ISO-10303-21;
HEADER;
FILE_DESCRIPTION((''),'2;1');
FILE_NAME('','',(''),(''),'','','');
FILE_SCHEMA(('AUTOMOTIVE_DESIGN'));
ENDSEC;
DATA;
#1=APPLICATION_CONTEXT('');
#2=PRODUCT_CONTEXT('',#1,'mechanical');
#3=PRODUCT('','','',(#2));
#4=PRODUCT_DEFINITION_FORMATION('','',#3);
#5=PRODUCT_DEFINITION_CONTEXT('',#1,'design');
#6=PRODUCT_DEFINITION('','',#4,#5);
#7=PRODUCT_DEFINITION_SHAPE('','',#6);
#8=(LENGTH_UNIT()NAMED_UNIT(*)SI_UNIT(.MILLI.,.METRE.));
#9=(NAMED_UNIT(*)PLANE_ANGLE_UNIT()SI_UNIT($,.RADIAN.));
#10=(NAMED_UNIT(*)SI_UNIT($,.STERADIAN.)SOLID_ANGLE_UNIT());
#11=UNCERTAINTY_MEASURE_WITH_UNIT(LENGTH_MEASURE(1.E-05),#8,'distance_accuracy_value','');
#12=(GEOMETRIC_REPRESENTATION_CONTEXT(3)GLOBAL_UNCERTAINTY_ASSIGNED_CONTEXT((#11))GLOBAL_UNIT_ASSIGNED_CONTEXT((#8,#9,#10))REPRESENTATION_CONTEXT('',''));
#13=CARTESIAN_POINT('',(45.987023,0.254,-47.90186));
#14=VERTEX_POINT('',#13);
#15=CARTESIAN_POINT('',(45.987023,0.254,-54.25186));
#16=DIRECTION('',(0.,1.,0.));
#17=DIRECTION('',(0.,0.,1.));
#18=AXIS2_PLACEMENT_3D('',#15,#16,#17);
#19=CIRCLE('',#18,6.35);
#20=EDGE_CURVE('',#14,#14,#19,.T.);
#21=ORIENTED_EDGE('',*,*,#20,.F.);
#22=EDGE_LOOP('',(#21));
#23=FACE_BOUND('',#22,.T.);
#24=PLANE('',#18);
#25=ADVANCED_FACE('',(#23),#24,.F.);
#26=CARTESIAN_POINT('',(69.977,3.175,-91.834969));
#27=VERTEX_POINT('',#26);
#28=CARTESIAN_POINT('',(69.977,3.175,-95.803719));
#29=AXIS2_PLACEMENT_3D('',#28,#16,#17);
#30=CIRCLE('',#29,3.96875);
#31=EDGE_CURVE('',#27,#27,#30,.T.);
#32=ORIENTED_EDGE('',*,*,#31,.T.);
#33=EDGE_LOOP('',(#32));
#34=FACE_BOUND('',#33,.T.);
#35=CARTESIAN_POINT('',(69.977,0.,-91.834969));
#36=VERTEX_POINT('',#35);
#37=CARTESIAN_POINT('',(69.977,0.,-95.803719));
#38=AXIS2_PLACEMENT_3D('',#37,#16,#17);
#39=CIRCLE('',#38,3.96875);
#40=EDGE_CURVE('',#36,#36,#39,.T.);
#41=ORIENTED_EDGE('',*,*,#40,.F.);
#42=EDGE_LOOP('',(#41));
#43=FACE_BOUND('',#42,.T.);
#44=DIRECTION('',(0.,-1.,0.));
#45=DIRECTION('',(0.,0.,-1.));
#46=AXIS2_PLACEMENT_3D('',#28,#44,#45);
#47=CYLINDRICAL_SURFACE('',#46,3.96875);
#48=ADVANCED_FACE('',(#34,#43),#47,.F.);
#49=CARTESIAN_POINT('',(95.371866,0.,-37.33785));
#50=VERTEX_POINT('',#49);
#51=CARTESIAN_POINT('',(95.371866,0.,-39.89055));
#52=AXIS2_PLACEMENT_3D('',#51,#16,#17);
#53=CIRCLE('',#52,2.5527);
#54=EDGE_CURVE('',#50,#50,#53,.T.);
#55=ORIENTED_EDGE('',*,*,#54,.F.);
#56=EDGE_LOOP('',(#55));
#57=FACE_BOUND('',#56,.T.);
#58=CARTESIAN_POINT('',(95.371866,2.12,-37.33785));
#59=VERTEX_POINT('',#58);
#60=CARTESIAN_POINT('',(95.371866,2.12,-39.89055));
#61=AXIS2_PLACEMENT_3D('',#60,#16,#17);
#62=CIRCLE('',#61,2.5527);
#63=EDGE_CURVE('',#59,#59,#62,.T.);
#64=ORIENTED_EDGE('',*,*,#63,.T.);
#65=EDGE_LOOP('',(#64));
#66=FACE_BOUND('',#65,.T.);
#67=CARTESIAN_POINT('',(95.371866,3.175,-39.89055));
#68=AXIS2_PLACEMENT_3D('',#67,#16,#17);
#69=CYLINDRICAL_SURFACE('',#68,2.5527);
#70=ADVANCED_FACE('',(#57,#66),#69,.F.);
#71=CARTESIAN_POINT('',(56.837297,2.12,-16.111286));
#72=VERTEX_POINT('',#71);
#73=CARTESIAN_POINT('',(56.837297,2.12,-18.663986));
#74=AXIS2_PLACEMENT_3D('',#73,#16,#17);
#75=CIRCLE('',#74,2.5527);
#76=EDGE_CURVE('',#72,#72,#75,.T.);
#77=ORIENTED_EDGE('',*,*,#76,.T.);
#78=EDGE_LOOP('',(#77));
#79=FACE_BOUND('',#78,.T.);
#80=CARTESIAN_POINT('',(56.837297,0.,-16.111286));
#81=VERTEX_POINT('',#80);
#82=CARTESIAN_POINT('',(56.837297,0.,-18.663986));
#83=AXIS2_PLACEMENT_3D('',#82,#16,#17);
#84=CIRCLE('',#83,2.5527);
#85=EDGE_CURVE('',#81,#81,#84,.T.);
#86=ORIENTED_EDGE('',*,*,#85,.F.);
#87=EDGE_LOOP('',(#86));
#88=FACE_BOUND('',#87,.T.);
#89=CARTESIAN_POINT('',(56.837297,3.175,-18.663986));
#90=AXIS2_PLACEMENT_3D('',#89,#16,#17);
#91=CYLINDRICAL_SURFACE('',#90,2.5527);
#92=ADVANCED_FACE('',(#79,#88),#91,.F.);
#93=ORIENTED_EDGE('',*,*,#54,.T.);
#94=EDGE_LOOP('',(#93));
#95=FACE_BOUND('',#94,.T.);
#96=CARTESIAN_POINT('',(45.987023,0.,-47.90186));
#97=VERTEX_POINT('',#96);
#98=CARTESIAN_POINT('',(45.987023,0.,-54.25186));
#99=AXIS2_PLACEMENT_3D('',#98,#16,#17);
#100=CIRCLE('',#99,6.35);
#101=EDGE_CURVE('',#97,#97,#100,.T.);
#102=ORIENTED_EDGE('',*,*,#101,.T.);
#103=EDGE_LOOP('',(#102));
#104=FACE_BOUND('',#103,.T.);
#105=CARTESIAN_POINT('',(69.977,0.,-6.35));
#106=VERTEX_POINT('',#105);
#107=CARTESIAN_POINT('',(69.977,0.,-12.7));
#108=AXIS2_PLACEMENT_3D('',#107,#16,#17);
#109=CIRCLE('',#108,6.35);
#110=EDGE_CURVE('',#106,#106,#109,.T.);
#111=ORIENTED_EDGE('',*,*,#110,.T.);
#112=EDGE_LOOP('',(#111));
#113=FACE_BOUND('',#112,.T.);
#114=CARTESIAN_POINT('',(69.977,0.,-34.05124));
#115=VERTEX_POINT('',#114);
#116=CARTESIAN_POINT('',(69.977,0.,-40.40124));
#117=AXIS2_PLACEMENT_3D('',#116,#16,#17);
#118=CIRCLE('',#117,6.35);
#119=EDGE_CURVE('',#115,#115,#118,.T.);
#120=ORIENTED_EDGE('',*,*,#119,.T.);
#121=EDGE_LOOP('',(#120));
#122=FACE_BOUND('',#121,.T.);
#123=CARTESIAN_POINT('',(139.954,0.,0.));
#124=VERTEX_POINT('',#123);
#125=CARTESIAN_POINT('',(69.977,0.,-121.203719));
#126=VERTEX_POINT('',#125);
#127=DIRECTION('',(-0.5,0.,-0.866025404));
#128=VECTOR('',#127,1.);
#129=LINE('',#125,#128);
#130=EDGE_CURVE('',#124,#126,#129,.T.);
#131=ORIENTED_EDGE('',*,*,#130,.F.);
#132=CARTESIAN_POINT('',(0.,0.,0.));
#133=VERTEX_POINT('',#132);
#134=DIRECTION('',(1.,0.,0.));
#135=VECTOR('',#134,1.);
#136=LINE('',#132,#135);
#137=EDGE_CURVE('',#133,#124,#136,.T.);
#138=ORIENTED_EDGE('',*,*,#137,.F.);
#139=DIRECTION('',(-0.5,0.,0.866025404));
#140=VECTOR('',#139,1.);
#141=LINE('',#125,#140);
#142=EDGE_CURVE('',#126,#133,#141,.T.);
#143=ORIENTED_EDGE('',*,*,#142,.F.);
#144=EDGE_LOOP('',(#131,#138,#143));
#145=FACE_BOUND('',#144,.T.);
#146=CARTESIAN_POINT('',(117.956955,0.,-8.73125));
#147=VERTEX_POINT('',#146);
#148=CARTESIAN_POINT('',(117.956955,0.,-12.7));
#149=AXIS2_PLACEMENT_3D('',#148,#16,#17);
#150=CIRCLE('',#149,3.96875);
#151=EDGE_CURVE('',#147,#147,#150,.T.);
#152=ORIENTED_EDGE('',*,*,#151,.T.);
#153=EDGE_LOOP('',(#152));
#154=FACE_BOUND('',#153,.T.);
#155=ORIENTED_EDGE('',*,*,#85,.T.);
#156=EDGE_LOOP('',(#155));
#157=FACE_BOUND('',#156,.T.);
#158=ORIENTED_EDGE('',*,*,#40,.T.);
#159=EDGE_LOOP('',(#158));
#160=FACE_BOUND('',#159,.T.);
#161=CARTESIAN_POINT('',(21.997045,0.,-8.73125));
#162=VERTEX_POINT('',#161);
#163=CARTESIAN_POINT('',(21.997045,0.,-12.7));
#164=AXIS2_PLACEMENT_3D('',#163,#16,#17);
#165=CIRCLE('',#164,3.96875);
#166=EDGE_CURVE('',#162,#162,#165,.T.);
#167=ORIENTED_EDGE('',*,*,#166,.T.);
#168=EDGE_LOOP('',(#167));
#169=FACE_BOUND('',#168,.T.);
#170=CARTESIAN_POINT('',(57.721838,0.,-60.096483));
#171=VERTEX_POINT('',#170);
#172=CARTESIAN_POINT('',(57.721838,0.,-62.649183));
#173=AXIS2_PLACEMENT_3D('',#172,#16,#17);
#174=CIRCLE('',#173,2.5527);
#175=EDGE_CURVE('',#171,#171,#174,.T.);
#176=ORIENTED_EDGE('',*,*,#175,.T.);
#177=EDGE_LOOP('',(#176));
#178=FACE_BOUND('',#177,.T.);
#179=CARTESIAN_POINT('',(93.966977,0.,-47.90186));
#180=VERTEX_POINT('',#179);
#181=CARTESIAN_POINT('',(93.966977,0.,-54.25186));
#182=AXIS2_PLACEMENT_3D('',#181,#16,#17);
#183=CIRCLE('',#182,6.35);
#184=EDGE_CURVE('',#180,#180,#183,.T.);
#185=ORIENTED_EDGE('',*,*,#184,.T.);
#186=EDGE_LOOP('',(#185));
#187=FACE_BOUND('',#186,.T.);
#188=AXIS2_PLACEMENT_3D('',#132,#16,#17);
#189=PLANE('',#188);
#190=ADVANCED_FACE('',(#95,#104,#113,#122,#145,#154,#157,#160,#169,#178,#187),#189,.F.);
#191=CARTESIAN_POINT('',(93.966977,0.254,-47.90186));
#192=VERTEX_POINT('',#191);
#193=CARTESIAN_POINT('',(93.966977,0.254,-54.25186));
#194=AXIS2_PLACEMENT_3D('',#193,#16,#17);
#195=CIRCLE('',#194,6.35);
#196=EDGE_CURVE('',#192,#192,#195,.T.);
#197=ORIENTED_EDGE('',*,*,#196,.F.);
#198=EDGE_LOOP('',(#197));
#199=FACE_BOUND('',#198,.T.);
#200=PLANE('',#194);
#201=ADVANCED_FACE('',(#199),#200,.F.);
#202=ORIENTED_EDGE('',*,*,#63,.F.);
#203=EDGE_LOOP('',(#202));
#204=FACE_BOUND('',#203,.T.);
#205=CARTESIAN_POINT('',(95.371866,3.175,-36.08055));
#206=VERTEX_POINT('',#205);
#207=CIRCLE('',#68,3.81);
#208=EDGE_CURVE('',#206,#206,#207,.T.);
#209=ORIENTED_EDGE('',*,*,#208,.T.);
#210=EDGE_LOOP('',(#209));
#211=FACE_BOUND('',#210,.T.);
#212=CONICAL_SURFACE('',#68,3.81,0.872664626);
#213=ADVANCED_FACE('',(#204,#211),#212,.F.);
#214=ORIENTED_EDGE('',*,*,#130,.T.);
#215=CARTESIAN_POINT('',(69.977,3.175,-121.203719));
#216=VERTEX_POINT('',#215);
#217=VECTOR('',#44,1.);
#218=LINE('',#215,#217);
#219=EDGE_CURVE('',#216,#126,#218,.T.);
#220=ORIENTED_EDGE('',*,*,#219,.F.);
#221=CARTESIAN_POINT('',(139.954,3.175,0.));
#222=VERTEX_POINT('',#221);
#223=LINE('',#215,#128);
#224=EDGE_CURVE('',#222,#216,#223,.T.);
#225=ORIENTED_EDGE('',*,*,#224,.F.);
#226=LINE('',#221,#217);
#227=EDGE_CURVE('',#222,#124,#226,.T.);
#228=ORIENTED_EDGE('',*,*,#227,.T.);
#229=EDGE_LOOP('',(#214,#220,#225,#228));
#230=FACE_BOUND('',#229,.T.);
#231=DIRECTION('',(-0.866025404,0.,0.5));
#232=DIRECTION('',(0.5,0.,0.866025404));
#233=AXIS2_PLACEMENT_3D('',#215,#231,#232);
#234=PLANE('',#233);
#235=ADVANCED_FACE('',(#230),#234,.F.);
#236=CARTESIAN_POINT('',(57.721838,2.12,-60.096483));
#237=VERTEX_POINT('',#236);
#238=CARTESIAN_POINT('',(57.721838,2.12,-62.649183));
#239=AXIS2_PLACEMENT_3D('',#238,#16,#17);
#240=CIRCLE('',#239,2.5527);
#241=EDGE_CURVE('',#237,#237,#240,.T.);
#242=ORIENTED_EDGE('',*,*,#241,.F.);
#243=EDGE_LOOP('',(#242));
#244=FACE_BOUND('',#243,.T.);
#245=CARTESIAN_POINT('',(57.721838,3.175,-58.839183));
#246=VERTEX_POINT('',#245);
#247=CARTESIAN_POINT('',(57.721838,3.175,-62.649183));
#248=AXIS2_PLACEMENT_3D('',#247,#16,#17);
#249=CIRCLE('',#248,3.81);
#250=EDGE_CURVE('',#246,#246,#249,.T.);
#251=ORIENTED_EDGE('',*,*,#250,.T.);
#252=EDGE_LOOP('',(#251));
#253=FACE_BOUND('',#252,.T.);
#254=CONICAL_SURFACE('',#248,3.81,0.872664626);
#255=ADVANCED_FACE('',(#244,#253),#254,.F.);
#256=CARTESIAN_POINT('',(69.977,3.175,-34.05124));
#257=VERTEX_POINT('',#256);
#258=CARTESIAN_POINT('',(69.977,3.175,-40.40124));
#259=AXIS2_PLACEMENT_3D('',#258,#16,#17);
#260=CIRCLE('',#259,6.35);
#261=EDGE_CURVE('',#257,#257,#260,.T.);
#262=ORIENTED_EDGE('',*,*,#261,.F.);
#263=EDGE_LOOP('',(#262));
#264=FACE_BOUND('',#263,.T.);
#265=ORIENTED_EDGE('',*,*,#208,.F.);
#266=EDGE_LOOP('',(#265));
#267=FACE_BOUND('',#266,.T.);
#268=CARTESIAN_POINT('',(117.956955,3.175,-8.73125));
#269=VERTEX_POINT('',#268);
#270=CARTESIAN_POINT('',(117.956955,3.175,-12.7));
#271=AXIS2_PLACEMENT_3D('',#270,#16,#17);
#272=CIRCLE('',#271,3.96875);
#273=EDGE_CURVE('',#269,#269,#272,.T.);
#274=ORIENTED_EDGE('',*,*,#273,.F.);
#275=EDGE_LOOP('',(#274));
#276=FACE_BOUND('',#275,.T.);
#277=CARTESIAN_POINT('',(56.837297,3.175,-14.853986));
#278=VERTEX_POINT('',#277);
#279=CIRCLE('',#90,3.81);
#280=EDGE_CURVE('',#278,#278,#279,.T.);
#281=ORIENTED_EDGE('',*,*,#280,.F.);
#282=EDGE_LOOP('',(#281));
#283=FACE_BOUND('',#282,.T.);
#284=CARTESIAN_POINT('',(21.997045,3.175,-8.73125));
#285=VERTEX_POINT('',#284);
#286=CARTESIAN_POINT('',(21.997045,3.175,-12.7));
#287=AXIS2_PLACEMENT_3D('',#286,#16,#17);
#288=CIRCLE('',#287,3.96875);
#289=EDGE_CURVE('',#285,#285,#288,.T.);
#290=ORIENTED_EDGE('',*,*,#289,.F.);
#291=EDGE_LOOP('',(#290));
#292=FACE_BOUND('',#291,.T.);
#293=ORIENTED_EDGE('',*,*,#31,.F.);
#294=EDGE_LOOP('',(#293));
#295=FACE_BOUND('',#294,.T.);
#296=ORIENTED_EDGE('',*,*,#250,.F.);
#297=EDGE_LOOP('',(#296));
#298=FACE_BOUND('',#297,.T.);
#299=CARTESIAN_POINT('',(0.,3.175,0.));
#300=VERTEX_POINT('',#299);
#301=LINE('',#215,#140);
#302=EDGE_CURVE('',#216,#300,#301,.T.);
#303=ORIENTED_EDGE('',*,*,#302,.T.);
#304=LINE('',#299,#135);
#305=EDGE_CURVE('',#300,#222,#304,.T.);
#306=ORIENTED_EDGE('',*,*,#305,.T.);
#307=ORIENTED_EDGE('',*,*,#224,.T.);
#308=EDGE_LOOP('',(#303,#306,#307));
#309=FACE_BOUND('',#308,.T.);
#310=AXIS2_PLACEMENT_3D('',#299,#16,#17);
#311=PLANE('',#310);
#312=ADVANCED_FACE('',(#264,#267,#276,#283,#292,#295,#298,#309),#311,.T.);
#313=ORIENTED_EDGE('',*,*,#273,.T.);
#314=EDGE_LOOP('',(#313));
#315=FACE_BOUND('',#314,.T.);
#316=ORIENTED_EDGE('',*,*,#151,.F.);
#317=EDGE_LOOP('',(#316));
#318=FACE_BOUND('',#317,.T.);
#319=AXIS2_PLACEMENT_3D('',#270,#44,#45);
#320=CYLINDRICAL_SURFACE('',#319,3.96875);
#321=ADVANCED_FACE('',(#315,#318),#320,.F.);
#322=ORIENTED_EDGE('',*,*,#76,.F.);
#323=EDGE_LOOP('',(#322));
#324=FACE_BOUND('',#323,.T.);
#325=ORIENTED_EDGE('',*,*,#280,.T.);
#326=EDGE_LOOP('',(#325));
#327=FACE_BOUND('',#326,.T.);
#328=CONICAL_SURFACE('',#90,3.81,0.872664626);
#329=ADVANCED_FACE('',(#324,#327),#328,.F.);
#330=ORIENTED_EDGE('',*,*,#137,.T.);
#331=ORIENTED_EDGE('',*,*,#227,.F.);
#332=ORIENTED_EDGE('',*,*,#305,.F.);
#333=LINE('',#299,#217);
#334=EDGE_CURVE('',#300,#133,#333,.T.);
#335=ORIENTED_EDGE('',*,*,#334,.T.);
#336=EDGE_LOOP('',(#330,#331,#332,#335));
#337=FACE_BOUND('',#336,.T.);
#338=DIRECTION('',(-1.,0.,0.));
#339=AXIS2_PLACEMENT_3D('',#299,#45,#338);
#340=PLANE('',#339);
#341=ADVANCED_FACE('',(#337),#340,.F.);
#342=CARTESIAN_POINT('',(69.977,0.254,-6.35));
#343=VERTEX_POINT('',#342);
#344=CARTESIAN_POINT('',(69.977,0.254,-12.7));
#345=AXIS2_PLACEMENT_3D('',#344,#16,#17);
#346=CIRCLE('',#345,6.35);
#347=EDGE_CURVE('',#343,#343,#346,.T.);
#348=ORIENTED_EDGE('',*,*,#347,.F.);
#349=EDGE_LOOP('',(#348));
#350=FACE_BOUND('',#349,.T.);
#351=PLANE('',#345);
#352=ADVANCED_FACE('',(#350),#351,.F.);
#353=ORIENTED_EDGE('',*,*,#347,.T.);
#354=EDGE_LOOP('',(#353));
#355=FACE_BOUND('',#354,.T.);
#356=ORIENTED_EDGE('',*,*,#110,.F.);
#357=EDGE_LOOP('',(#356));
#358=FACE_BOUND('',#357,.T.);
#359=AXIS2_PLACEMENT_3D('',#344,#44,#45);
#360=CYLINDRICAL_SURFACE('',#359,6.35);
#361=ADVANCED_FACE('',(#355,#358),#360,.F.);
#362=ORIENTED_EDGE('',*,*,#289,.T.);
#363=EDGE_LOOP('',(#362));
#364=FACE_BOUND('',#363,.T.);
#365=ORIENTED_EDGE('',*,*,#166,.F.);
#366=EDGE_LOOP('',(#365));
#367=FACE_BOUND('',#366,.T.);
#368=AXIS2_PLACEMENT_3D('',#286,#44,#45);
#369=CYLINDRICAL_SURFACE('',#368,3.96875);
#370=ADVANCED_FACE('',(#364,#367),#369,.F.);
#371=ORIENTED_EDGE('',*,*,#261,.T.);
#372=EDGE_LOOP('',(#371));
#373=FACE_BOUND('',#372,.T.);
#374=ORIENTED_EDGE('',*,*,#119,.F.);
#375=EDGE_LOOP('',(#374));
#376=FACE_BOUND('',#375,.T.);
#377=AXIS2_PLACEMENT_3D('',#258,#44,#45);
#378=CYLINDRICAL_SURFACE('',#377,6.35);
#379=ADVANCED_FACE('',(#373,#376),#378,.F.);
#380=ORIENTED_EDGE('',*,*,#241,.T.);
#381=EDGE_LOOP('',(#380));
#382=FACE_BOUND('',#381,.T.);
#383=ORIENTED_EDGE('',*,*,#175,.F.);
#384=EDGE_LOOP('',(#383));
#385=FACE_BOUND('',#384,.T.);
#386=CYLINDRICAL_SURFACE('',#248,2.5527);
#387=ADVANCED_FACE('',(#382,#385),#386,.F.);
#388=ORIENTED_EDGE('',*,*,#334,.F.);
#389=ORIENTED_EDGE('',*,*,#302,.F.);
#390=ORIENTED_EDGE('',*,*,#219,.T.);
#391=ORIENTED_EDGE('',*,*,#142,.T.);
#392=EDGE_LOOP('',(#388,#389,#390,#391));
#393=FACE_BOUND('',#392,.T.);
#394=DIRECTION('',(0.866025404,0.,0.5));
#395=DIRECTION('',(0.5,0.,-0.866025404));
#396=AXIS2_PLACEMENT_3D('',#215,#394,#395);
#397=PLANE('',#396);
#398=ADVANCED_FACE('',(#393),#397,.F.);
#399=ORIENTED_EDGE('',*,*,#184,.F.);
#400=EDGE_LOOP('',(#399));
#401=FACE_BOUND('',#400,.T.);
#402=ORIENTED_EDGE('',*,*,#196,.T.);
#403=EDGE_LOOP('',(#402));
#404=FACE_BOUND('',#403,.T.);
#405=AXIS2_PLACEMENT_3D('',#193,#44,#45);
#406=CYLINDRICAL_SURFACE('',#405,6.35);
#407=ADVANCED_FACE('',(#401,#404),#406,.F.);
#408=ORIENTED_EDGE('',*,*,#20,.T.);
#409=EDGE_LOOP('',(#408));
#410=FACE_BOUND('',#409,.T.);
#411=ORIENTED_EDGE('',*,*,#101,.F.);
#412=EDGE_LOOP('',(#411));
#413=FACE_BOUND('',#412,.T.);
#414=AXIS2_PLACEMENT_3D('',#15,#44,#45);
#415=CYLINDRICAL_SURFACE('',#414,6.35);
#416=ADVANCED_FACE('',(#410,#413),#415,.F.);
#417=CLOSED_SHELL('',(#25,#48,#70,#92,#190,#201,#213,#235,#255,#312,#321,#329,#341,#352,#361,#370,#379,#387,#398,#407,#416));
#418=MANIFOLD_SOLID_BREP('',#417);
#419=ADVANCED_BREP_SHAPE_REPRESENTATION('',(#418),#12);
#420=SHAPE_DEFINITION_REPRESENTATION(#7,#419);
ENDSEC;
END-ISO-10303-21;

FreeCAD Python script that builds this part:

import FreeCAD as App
import Part
import Sketcher
from FreeCAD import Vector
Q = App.Units.Quantity

doc = App.newDocument("Part")
body = doc.addObject("PartDesign::Body", "Body")

# Sketch on XZ plane
sketch1 = body.newObject("Sketcher::SketchObject", "Sketch")
sketch1.AttachmentSupport = (doc.getObject("XZ_Plane"), [""])
sketch1.MapMode = "FlatFace"
sketch1.addGeometry([
    Part.LineSegment(Vector(0, 0, 0), Vector(139.954, 0, 0)),  # 0
    Part.LineSegment(Vector(139.954, 0, 0), Vector(69.977, -121.203719, 0)),  # 1
    Part.LineSegment(Vector(69.977, -121.203719, 0), Vector(0, 0, 0)),  # 2
    Part.Circle(Vector(21.997045, -12.7, 0), Vector(0, 0, 1), 3.96875),  # 3
    Part.Circle(Vector(117.956955, -12.7, 0), Vector(0, 0, 1), 3.96875),  # 4
    Part.Circle(Vector(69.977, -40.40124, 0), Vector(0, 0, 1), 6.35),  # 5
    Part.Circle(Vector(69.977, -95.803719, 0), Vector(0, 0, 1), 3.96875),  # 6
], False)
sketch1.addConstraint([
    Sketcher.Constraint("Coincident", 0, 2, 1, 1),
    Sketcher.Constraint("Coincident", 1, 2, 2, 1),
    Sketcher.Constraint("Coincident", 2, 2, 0, 1),
    Sketcher.Constraint("Horizontal", 0),
    Sketcher.Constraint("Coincident", 2, 2, -1, 1),
    Sketcher.Constraint("Equal", 3, 4),
    Sketcher.Constraint("Equal", 4, 6),
    Sketcher.Constraint("Horizontal", 3, 3, 4, 3),
    Sketcher.Constraint("Vertical", 5, 3, 6, 3),
    Sketcher.Constraint("Vertical", 6, 3, 1, 2),
    Sketcher.Constraint("Equal", 1, 2),
    Sketcher.Constraint("Diameter", 5, Q("0.5 in")),
    Sketcher.Constraint("Diameter", 3, Q("0.3125 in")),
    Sketcher.Constraint("Angle", 1, Q("-120 deg")),
    Sketcher.Constraint("DistanceY", 1, 2, 6, 3, Q("1 in")),
    Sketcher.Constraint("DistanceX", 0, 1, 0, 2, Q("5.51 in")),
    Sketcher.Constraint("DistanceY", 3, 3, -1, 1, Q("0.5 in")),
    Sketcher.Constraint("DistanceY", 5, 3, -1, 1, Q("1.5906 in")),
    Sketcher.Constraint("DistanceX", 3, 3, 4, 3, 95.959909),
    Sketcher.Constraint("DistanceX", -1, 1, 3, 3, 21.997045),
])
pad1 = body.newObject("PartDesign::Pad", "Pad")
pad1.Profile = sketch1
pad1.Length = Q("0.125 in")
pad1.Reversed = True

# Sketch on XZ plane
sketch2 = body.newObject("Sketcher::SketchObject", "Sketch001")
sketch2.AttachmentSupport = (doc.getObject("XZ_Plane"), [""])
sketch2.MapMode = "FlatFace"
sketch2.addGeometry([
    Part.Circle(Vector(93.966977, -54.25186, 0), Vector(0, 0, 1), 6.35),
    Part.Circle(Vector(69.977, -12.7, 0), Vector(0, 0, 1), 6.35),
    Part.Circle(Vector(45.987023, -54.25186, 0), Vector(0, 0, 1), 6.35),
], False)
sketch2.addConstraint([
    Sketcher.Constraint("Equal", 0, 1),
    Sketcher.Constraint("Equal", 1, 2),
    Sketcher.Constraint("Horizontal", 0, 3, 2, 3),
    Sketcher.Constraint("Diameter", 0, Q("0.5 in")),
    Sketcher.Constraint("DistanceY", 1, 3, -1, 1, Q("0.5 in")),
    Sketcher.Constraint("DistanceX", -1, 1, 1, 3, Q("2.755 in")),
    Sketcher.Constraint("DistanceY", 0, 3, -1, 1, Q("2.1359 in")),
    Sketcher.Constraint("DistanceX", -1, 1, 0, 3, 93.966977),
    Sketcher.Constraint("DistanceX", -1, 1, 2, 3, 45.987023),
])
pocket1 = body.newObject("PartDesign::Pocket", "Pocket")
pocket1.Profile = sketch2
pocket1.Length = Q("0.01 in")

# Sketch on YZ plane
sketch3 = body.newObject("Sketcher::SketchObject", "Sketch002")
sketch3.AttachmentSupport = (doc.getObject("YZ_Plane"), [""])
sketch3.MapMode = "FlatFace"
sketch3.AttachmentOffset = App.Placement(Vector(0, 0, 56.837297), App.Rotation())
sketch3.addGeometry([
    Part.LineSegment(Vector(0, -18.663986, 0), Vector(3.175, -18.663986, 0)),  # 0
    Part.LineSegment(Vector(3.175, -18.663986, 0), Vector(3.175, -14.853986, 0)),  # 1
    Part.LineSegment(Vector(3.175, -14.853986, 0), Vector(2.12, -16.111286, 0)),  # 2
    Part.LineSegment(Vector(2.12, -16.111286, 0), Vector(0, -16.111286, 0)),  # 3
    Part.LineSegment(Vector(0, -16.111286, 0), Vector(0, -18.663986, 0)),  # 4
], False)
sketch3.addGeometry(Part.LineSegment(Vector(3.175, -18.663986, 0), Vector(0, -18.663986, 0)), True)  # axis
sketch3.addConstraint([
    Sketcher.Constraint("Coincident", 0, 2, 1, 1),
    Sketcher.Constraint("Coincident", 1, 2, 2, 1),
    Sketcher.Constraint("Coincident", 2, 2, 3, 1),
    Sketcher.Constraint("Coincident", 3, 2, 4, 1),
    Sketcher.Constraint("Coincident", 4, 2, 0, 1),
    Sketcher.Constraint("Horizontal", 0),
    Sketcher.Constraint("Vertical", 1),
    Sketcher.Constraint("Horizontal", 3),
    Sketcher.Constraint("Vertical", 4),
    Sketcher.Constraint("Horizontal", 5),
    Sketcher.Constraint("Coincident", 5, 1, 0, 2),
    Sketcher.Constraint("PointOnObject", 3, 2, -2),
    Sketcher.Constraint("PointOnObject", 5, 2, -2),
    Sketcher.Constraint("Angle", 2, Q("-130 deg")),
    Sketcher.Constraint("DistanceY", 1, 1, 1, 2, Q("0.15 in")),
    Sketcher.Constraint("DistanceX", 0, 1, 0, 2, Q("0.125 in")),
    Sketcher.Constraint("DistanceY", 4, 2, 4, 1, Q("0.1005 in")),
    Sketcher.Constraint("DistanceY", 0, 2, -1, 1, 18.663986),
])
groove = body.newObject("PartDesign::Groove", "Groove")
groove.Profile = sketch3
groove.ReferenceAxis = (sketch3, ["Axis0"])
groove.Angle = 360
doc.recompute()

datumline = body.newObject("PartDesign::Line", "DatumLine")
datumline.Placement = App.Placement(Vector(0, 0, 0), App.Rotation(Vector(0, 0, 1), Vector(0.875903289, 0, -0.482486712)))
linearpattern = body.newObject("PartDesign::LinearPattern", "LinearPattern")
linearpattern.Originals = [groove]
linearpattern.Direction = (datumline, [""])
linearpattern.Mode = "offset"
linearpattern.Offset = 43.99409
linearpattern.Occurrences = 2
body.Tip = linearpattern
doc.recompute()

datumline2 = body.newObject("PartDesign::Line", "DatumLine001")
datumline2.Placement = App.Placement(Vector(0, 0, 0), App.Rotation(Vector(0, 0, 1), Vector(0.020105895, 0, -0.999797856)))
linearpattern2 = body.newObject("PartDesign::LinearPattern", "LinearPattern001")
linearpattern2.Originals = [groove]
linearpattern2.Direction = (datumline2, [""])
linearpattern2.Mode = "offset"
linearpattern2.Offset = 43.994091
linearpattern2.Occurrences = 2
body.Tip = linearpattern2

doc.recompute()
